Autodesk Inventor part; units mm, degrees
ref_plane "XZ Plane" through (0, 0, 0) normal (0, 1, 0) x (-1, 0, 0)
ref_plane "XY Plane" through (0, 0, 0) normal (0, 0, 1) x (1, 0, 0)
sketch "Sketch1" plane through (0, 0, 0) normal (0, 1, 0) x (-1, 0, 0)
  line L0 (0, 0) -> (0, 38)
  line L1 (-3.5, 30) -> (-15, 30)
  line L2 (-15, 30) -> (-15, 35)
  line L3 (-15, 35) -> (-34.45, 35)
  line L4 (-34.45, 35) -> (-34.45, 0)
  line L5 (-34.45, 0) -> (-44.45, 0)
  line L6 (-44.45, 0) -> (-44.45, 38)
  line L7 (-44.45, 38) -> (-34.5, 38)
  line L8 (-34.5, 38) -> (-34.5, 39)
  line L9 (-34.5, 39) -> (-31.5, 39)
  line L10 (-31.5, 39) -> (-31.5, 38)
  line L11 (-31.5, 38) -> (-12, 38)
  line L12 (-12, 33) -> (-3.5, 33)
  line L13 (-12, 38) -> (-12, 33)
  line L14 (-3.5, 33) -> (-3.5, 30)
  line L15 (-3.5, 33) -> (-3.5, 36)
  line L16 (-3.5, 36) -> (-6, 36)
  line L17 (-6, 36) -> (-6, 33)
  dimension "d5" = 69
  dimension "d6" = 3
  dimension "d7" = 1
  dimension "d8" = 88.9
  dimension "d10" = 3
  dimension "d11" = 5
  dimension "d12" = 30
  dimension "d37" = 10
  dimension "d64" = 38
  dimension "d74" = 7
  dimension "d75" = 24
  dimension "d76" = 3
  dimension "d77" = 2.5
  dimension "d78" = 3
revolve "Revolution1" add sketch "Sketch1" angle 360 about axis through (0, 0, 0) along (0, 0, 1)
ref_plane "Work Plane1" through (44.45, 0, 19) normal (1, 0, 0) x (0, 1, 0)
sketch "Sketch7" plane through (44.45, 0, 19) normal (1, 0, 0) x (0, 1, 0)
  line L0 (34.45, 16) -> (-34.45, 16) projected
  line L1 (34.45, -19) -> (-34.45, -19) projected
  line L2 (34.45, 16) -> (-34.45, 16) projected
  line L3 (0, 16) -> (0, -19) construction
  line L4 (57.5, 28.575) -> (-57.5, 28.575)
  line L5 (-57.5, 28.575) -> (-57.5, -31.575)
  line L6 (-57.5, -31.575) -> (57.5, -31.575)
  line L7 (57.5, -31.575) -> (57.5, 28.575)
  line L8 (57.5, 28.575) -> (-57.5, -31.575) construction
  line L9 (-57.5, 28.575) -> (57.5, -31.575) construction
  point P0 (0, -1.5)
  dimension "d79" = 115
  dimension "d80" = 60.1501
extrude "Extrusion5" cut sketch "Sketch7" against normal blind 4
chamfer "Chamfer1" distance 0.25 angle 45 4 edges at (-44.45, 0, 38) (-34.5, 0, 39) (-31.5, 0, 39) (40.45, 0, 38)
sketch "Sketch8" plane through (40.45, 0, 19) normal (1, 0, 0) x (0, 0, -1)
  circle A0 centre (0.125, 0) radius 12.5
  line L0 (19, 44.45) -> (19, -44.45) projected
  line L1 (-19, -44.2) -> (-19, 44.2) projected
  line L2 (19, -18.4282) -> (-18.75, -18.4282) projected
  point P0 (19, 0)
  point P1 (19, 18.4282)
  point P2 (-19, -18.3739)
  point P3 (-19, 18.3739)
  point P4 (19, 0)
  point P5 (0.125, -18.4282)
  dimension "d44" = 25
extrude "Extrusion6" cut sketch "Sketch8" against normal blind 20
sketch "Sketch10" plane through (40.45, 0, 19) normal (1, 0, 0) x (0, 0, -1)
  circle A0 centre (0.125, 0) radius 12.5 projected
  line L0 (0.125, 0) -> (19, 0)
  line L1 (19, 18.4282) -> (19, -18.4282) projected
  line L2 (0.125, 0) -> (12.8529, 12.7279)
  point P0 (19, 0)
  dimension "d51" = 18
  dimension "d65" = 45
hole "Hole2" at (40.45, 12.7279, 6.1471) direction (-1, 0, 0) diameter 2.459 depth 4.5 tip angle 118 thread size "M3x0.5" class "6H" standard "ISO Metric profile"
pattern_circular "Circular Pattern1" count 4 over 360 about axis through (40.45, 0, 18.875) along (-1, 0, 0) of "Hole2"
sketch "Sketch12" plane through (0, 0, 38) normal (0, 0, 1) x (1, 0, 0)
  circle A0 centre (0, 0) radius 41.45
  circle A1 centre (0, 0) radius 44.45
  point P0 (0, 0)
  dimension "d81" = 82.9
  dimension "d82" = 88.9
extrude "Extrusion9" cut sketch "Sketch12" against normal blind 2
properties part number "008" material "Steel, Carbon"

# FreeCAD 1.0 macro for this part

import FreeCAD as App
import Part
import Sketcher
Q = App.Units.Quantity


def edges_at(feature, points):
    """Names of the edges that pass closest to the given points."""
    edges = feature.Shape.Edges
    near = lambda p: min(range(len(edges)), key=lambda i: edges[i].distToShape(Part.Vertex(*p))[0])
    return sorted({f"Edge{near(p) + 1}" for p in points})

doc = App.newDocument("Part")
body = doc.addObject("PartDesign::Body", "Body")

# Sketch on XZ plane
sketch1 = body.newObject("Sketcher::SketchObject", "Sketch")
sketch1.AttachmentSupport = (doc.getObject("XZ_Plane"), [""])
sketch1.MapMode = "FlatFace"
sketch1.addGeometry(Part.LineSegment(App.Vector(15, 30, 0), App.Vector(3.5, 30, 0)), False)
sketch1.addGeometry(Part.LineSegment(App.Vector(3.5, 30, 0), App.Vector(3.5, 36, 0)), False)
sketch1.addGeometry(Part.LineSegment(App.Vector(3.5, 36, 0), App.Vector(6, 36, 0)), False)
sketch1.addGeometry(Part.LineSegment(App.Vector(6, 36, 0), App.Vector(6, 33, 0)), False)
sketch1.addGeometry(Part.LineSegment(App.Vector(6, 33, 0), App.Vector(12, 33, 0)), False)
sketch1.addGeometry(Part.LineSegment(App.Vector(12, 33, 0), App.Vector(12, 38, 0)), False)
sketch1.addGeometry(Part.LineSegment(App.Vector(12, 38, 0), App.Vector(31.5, 38, 0)), False)
sketch1.addGeometry(Part.LineSegment(App.Vector(31.5, 38, 0), App.Vector(31.5, 39, 0)), False)
sketch1.addGeometry(Part.LineSegment(App.Vector(31.5, 39, 0), App.Vector(34.5, 39, 0)), False)
sketch1.addGeometry(Part.LineSegment(App.Vector(34.5, 39, 0), App.Vector(34.5, 38, 0)), False)
sketch1.addGeometry(Part.LineSegment(App.Vector(34.5, 38, 0), App.Vector(44.5, 38, 0)), False)
sketch1.addGeometry(Part.LineSegment(App.Vector(44.5, 38, 0), App.Vector(44.5, 0, 0)), False)
sketch1.addGeometry(Part.LineSegment(App.Vector(44.5, 0, 0), App.Vector(34.5, 0, 0)), False)
sketch1.addGeometry(Part.LineSegment(App.Vector(34.5, 0, 0), App.Vector(34.5, 35, 0)), False)
sketch1.addGeometry(Part.LineSegment(App.Vector(34.5, 35, 0), App.Vector(15, 35, 0)), False)
sketch1.addGeometry(Part.LineSegment(App.Vector(15, 35, 0), App.Vector(15, 30, 0)), False)
sketch1.addConstraint(Sketcher.Constraint("Coincident", 0, 2, 1, 1))
sketch1.addConstraint(Sketcher.Constraint("Coincident", 1, 2, 2, 1))
sketch1.addConstraint(Sketcher.Constraint("Coincident", 2, 2, 3, 1))
sketch1.addConstraint(Sketcher.Constraint("Coincident", 3, 2, 4, 1))
sketch1.addConstraint(Sketcher.Constraint("Coincident", 4, 2, 5, 1))
sketch1.addConstraint(Sketcher.Constraint("Coincident", 5, 2, 6, 1))
sketch1.addConstraint(Sketcher.Constraint("Coincident", 6, 2, 7, 1))
sketch1.addConstraint(Sketcher.Constraint("Coincident", 7, 2, 8, 1))
sketch1.addConstraint(Sketcher.Constraint("Coincident", 8, 2, 9, 1))
sketch1.addConstraint(Sketcher.Constraint("Coincident", 9, 2, 10, 1))
sketch1.addConstraint(Sketcher.Constraint("Coincident", 10, 2, 11, 1))
sketch1.addConstraint(Sketcher.Constraint("Coincident", 11, 2, 12, 1))
sketch1.addConstraint(Sketcher.Constraint("Coincident", 12, 2, 13, 1))
sketch1.addConstraint(Sketcher.Constraint("Coincident", 13, 2, 14, 1))
sketch1.addConstraint(Sketcher.Constraint("Coincident", 14, 2, 15, 1))
sketch1.addConstraint(Sketcher.Constraint("Coincident", 15, 2, 0, 1))
sketch1.addConstraint(Sketcher.Constraint("Horizontal", 0))
sketch1.addConstraint(Sketcher.Constraint("Vertical", 1))
sketch1.addConstraint(Sketcher.Constraint("Horizontal", 2))
sketch1.addConstraint(Sketcher.Constraint("Vertical", 3))
sketch1.addConstraint(Sketcher.Constraint("Horizontal", 4))
sketch1.addConstraint(Sketcher.Constraint("Vertical", 5))
sketch1.addConstraint(Sketcher.Constraint("Horizontal", 6))
sketch1.addConstraint(Sketcher.Constraint("Vertical", 7))
sketch1.addConstraint(Sketcher.Constraint("Horizontal", 8))
sketch1.addConstraint(Sketcher.Constraint("Vertical", 9))
sketch1.addConstraint(Sketcher.Constraint("Horizontal", 10))
sketch1.addConstraint(Sketcher.Constraint("Vertical", 11))
sketch1.addConstraint(Sketcher.Constraint("Horizontal", 12))
sketch1.addConstraint(Sketcher.Constraint("Vertical", 13))
sketch1.addConstraint(Sketcher.Constraint("Horizontal", 14))
sketch1.addConstraint(Sketcher.Constraint("Vertical", 15))
sketch1.addConstraint(Sketcher.Constraint("PointOnObject", 11, 2, -1))
sketch1.addConstraint(Sketcher.Constraint("Horizontal", 6, 2, 9, 2))
sketch1.addConstraint(Sketcher.Constraint("Equal", 4, 1))
sketch1.addConstraint(Sketcher.Constraint("Equal", 8, 3))
sketch1.addConstraint(Sketcher.Constraint("Equal", 5, 15))
sketch1.addConstraint(Sketcher.Constraint("DistanceX", 8, 1, 8, 2, Q("3 mm")))
sketch1.addConstraint(Sketcher.Constraint("DistanceX", 12, 2, 12, 1, Q("10 mm")))
sketch1.addConstraint(Sketcher.Constraint("DistanceY", 5, 1, 5, 2, Q("5 mm")))
sketch1.addConstraint(Sketcher.Constraint("DistanceY", 7, 1, 7, 2, Q("1 mm")))
sketch1.addConstraint(Sketcher.Constraint("DistanceY", 11, 2, 11, 1, Q("38 mm")))
sketch1.addConstraint(Sketcher.Constraint("DistanceX", 2, 1, 2, 2, Q("2.5 mm")))
sketch1.addConstraint(Sketcher.Constraint("DistanceY", -1, 1, 0, 2, Q("30 mm")))
sketch1.addConstraint(Sketcher.Constraint("DistanceX", 4, 2, 14, 2, Q("3 mm")))
sketch1.addConstraint(Sketcher.Constraint("DistanceX", 6, 1, 6, 2, Q("19.5 mm")))
sketch1.addConstraint(Sketcher.Constraint("DistanceX", -1, 1, 2, 2, Q("6 mm")))
sketch1.addConstraint(Sketcher.Constraint("DistanceX", 10, 1, 10, 2, Q("9.95 mm")))
revolution = body.newObject("PartDesign::Revolution", "Revolution")
revolution.Profile = sketch1
revolution.ReferenceAxis = (sketch1, ["V_Axis"])
revolution.Angle = 360

# Sketch on YZ plane
sketch2 = body.newObject("Sketcher::SketchObject", "Sketch001")
sketch2.AttachmentSupport = (doc.getObject("YZ_Plane"), [""])
sketch2.MapMode = "FlatFace"
sketch2.AttachmentOffset = App.Placement(App.Vector(0, 0, 44.45), App.Rotation())
sketch2.addGeometry(Part.LineSegment(App.Vector(58, -13, 0), App.Vector(58, 48, 0)), False)
sketch2.addGeometry(Part.LineSegment(App.Vector(58, 48, 0), App.Vector(-58, 48, 0)), False)
sketch2.addGeometry(Part.LineSegment(App.Vector(-58, 48, 0), App.Vector(-58, -13, 0)), False)
sketch2.addGeometry(Part.LineSegment(App.Vector(-58, -13, 0), App.Vector(58, -13, 0)), False)
sketch2.addConstraint(Sketcher.Constraint("Coincident", 0, 2, 1, 1))
sketch2.addConstraint(Sketcher.Constraint("Coincident", 1, 2, 2, 1))
sketch2.addConstraint(Sketcher.Constraint("Coincident", 2, 2, 3, 1))
sketch2.addConstraint(Sketcher.Constraint("Coincident", 3, 2, 0, 1))
sketch2.addConstraint(Sketcher.Constraint("Vertical", 0))
sketch2.addConstraint(Sketcher.Constraint("Horizontal", 1))
sketch2.addConstraint(Sketcher.Constraint("Vertical", 2))
sketch2.addConstraint(Sketcher.Constraint("Horizontal", 3))
sketch2.addConstraint(Sketcher.Constraint("DistanceX", 1, 2, 1, 1, Q("115 mm")))
sketch2.addConstraint(Sketcher.Constraint("DistanceY", 0, 1, 0, 2, Q("60.15 mm")))
sketch2.addConstraint(Sketcher.Constraint("DistanceX", -1, 1, 0, 2, Q("57.5 mm")))
sketch2.addConstraint(Sketcher.Constraint("DistanceY", -1, 1, 0, 2, Q("47.575 mm")))
pocket1 = body.newObject("PartDesign::Pocket", "Pocket")
pocket1.Profile = sketch2
pocket1.Length = 4
doc.recompute()

chamfer = body.newObject("PartDesign::Chamfer", "Chamfer")
chamfer.Base = (pocket1, edges_at(pocket1, [
    (-44.45, 0, 38),
    (-34.5, 0, 39),
    (-31.5, 0, 39),
    (40.45, 0, 38),
]))
chamfer.Size = 0.25

# Sketch on YZ plane
sketch3 = body.newObject("Sketcher::SketchObject", "Sketch002")
sketch3.AttachmentSupport = (doc.getObject("YZ_Plane"), [""])
sketch3.MapMode = "FlatFace"
sketch3.AttachmentOffset = App.Placement(App.Vector(0, 0, 40.45), App.Rotation())
sketch3.addGeometry(Part.Circle(App.Vector(0, 19, 0), App.Vector(0, 0, 1), 12), False)
sketch3.addConstraint(Sketcher.Constraint("PointOnObject", 0, 3, -2))
sketch3.addConstraint(Sketcher.Constraint("Diameter", 0, Q("25 mm")))
sketch3.addConstraint(Sketcher.Constraint("DistanceY", -1, 1, 0, 3, Q("18.875 mm")))
pocket2 = body.newObject("PartDesign::Pocket", "Pocket001")
pocket2.Profile = sketch3
pocket2.Length = 20

# Sketch on YZ plane
sketch4 = body.newObject("Sketcher::SketchObject", "Sketch003")
sketch4.AttachmentSupport = (doc.getObject("YZ_Plane"), [""])
sketch4.MapMode = "FlatFace"
sketch4.AttachmentOffset = App.Placement(App.Vector(0, 0, 40.45), App.Rotation())
sketch4.addGeometry(Part.Circle(App.Vector(12.7, 6.1, 0), App.Vector(0, 0, 1), 1.2), False)
sketch4.addConstraint(Sketcher.Constraint("Diameter", 0, Q("2.459 mm")))
sketch4.addConstraint(Sketcher.Constraint("DistanceX", -1, 1, 0, 3, Q("12.728 mm")))
sketch4.addConstraint(Sketcher.Constraint("DistanceY", -1, 1, 0, 3, Q("6.147 mm")))
doc.recompute()
hole = body.newObject("PartDesign::Hole", "Hole")
hole.Profile = sketch4
hole.ThreadType = "None"
hole.Diameter = 2.459
hole.DepthType = "Dimension"
hole.Depth = 4.5
hole.DrillPoint = "Angled"
hole.DrillPointAngle = 118
doc.recompute()

datumline = body.newObject("PartDesign::Line", "DatumLine")
datumline.Placement = App.Placement(App.Vector(0, 0, 18.875), App.Rotation(App.Vector(0, 0, 1), App.Vector(1, 0, 0)))
polarpattern = body.newObject("PartDesign::PolarPattern", "PolarPattern")
polarpattern.Originals = [hole]
polarpattern.Axis = (datumline, [""])
polarpattern.Angle = 360
polarpattern.Occurrences = 4
body.Tip = polarpattern

# Sketch on XY plane
sketch5 = body.newObject("Sketcher::SketchObject", "Sketch004")
sketch5.AttachmentSupport = (doc.getObject("XY_Plane"), [""])
sketch5.MapMode = "FlatFace"
sketch5.AttachmentOffset = App.Placement(App.Vector(0, 0, 38), App.Rotation())
sketch5.addGeometry(Part.Circle(App.Vector(0, 0, 0), App.Vector(0, 0, 1), 44), False)
sketch5.addGeometry(Part.Circle(App.Vector(0, 0, 0), App.Vector(0, 0, 1), 41), False)
sketch5.addConstraint(Sketcher.Constraint("Coincident", 0, 3, -1, 1))
sketch5.addConstraint(Sketcher.Constraint("Coincident", 1, 3, -1, 1))
sketch5.addConstraint(Sketcher.Constraint("Diameter", 0, Q("88.9 mm")))
sketch5.addConstraint(Sketcher.Constraint("Diameter", 1, Q("82.9 mm")))
pocket3 = body.newObject("PartDesign::Pocket", "Pocket002")
pocket3.Profile = sketch5
pocket3.Length = 2

doc.recompute()
